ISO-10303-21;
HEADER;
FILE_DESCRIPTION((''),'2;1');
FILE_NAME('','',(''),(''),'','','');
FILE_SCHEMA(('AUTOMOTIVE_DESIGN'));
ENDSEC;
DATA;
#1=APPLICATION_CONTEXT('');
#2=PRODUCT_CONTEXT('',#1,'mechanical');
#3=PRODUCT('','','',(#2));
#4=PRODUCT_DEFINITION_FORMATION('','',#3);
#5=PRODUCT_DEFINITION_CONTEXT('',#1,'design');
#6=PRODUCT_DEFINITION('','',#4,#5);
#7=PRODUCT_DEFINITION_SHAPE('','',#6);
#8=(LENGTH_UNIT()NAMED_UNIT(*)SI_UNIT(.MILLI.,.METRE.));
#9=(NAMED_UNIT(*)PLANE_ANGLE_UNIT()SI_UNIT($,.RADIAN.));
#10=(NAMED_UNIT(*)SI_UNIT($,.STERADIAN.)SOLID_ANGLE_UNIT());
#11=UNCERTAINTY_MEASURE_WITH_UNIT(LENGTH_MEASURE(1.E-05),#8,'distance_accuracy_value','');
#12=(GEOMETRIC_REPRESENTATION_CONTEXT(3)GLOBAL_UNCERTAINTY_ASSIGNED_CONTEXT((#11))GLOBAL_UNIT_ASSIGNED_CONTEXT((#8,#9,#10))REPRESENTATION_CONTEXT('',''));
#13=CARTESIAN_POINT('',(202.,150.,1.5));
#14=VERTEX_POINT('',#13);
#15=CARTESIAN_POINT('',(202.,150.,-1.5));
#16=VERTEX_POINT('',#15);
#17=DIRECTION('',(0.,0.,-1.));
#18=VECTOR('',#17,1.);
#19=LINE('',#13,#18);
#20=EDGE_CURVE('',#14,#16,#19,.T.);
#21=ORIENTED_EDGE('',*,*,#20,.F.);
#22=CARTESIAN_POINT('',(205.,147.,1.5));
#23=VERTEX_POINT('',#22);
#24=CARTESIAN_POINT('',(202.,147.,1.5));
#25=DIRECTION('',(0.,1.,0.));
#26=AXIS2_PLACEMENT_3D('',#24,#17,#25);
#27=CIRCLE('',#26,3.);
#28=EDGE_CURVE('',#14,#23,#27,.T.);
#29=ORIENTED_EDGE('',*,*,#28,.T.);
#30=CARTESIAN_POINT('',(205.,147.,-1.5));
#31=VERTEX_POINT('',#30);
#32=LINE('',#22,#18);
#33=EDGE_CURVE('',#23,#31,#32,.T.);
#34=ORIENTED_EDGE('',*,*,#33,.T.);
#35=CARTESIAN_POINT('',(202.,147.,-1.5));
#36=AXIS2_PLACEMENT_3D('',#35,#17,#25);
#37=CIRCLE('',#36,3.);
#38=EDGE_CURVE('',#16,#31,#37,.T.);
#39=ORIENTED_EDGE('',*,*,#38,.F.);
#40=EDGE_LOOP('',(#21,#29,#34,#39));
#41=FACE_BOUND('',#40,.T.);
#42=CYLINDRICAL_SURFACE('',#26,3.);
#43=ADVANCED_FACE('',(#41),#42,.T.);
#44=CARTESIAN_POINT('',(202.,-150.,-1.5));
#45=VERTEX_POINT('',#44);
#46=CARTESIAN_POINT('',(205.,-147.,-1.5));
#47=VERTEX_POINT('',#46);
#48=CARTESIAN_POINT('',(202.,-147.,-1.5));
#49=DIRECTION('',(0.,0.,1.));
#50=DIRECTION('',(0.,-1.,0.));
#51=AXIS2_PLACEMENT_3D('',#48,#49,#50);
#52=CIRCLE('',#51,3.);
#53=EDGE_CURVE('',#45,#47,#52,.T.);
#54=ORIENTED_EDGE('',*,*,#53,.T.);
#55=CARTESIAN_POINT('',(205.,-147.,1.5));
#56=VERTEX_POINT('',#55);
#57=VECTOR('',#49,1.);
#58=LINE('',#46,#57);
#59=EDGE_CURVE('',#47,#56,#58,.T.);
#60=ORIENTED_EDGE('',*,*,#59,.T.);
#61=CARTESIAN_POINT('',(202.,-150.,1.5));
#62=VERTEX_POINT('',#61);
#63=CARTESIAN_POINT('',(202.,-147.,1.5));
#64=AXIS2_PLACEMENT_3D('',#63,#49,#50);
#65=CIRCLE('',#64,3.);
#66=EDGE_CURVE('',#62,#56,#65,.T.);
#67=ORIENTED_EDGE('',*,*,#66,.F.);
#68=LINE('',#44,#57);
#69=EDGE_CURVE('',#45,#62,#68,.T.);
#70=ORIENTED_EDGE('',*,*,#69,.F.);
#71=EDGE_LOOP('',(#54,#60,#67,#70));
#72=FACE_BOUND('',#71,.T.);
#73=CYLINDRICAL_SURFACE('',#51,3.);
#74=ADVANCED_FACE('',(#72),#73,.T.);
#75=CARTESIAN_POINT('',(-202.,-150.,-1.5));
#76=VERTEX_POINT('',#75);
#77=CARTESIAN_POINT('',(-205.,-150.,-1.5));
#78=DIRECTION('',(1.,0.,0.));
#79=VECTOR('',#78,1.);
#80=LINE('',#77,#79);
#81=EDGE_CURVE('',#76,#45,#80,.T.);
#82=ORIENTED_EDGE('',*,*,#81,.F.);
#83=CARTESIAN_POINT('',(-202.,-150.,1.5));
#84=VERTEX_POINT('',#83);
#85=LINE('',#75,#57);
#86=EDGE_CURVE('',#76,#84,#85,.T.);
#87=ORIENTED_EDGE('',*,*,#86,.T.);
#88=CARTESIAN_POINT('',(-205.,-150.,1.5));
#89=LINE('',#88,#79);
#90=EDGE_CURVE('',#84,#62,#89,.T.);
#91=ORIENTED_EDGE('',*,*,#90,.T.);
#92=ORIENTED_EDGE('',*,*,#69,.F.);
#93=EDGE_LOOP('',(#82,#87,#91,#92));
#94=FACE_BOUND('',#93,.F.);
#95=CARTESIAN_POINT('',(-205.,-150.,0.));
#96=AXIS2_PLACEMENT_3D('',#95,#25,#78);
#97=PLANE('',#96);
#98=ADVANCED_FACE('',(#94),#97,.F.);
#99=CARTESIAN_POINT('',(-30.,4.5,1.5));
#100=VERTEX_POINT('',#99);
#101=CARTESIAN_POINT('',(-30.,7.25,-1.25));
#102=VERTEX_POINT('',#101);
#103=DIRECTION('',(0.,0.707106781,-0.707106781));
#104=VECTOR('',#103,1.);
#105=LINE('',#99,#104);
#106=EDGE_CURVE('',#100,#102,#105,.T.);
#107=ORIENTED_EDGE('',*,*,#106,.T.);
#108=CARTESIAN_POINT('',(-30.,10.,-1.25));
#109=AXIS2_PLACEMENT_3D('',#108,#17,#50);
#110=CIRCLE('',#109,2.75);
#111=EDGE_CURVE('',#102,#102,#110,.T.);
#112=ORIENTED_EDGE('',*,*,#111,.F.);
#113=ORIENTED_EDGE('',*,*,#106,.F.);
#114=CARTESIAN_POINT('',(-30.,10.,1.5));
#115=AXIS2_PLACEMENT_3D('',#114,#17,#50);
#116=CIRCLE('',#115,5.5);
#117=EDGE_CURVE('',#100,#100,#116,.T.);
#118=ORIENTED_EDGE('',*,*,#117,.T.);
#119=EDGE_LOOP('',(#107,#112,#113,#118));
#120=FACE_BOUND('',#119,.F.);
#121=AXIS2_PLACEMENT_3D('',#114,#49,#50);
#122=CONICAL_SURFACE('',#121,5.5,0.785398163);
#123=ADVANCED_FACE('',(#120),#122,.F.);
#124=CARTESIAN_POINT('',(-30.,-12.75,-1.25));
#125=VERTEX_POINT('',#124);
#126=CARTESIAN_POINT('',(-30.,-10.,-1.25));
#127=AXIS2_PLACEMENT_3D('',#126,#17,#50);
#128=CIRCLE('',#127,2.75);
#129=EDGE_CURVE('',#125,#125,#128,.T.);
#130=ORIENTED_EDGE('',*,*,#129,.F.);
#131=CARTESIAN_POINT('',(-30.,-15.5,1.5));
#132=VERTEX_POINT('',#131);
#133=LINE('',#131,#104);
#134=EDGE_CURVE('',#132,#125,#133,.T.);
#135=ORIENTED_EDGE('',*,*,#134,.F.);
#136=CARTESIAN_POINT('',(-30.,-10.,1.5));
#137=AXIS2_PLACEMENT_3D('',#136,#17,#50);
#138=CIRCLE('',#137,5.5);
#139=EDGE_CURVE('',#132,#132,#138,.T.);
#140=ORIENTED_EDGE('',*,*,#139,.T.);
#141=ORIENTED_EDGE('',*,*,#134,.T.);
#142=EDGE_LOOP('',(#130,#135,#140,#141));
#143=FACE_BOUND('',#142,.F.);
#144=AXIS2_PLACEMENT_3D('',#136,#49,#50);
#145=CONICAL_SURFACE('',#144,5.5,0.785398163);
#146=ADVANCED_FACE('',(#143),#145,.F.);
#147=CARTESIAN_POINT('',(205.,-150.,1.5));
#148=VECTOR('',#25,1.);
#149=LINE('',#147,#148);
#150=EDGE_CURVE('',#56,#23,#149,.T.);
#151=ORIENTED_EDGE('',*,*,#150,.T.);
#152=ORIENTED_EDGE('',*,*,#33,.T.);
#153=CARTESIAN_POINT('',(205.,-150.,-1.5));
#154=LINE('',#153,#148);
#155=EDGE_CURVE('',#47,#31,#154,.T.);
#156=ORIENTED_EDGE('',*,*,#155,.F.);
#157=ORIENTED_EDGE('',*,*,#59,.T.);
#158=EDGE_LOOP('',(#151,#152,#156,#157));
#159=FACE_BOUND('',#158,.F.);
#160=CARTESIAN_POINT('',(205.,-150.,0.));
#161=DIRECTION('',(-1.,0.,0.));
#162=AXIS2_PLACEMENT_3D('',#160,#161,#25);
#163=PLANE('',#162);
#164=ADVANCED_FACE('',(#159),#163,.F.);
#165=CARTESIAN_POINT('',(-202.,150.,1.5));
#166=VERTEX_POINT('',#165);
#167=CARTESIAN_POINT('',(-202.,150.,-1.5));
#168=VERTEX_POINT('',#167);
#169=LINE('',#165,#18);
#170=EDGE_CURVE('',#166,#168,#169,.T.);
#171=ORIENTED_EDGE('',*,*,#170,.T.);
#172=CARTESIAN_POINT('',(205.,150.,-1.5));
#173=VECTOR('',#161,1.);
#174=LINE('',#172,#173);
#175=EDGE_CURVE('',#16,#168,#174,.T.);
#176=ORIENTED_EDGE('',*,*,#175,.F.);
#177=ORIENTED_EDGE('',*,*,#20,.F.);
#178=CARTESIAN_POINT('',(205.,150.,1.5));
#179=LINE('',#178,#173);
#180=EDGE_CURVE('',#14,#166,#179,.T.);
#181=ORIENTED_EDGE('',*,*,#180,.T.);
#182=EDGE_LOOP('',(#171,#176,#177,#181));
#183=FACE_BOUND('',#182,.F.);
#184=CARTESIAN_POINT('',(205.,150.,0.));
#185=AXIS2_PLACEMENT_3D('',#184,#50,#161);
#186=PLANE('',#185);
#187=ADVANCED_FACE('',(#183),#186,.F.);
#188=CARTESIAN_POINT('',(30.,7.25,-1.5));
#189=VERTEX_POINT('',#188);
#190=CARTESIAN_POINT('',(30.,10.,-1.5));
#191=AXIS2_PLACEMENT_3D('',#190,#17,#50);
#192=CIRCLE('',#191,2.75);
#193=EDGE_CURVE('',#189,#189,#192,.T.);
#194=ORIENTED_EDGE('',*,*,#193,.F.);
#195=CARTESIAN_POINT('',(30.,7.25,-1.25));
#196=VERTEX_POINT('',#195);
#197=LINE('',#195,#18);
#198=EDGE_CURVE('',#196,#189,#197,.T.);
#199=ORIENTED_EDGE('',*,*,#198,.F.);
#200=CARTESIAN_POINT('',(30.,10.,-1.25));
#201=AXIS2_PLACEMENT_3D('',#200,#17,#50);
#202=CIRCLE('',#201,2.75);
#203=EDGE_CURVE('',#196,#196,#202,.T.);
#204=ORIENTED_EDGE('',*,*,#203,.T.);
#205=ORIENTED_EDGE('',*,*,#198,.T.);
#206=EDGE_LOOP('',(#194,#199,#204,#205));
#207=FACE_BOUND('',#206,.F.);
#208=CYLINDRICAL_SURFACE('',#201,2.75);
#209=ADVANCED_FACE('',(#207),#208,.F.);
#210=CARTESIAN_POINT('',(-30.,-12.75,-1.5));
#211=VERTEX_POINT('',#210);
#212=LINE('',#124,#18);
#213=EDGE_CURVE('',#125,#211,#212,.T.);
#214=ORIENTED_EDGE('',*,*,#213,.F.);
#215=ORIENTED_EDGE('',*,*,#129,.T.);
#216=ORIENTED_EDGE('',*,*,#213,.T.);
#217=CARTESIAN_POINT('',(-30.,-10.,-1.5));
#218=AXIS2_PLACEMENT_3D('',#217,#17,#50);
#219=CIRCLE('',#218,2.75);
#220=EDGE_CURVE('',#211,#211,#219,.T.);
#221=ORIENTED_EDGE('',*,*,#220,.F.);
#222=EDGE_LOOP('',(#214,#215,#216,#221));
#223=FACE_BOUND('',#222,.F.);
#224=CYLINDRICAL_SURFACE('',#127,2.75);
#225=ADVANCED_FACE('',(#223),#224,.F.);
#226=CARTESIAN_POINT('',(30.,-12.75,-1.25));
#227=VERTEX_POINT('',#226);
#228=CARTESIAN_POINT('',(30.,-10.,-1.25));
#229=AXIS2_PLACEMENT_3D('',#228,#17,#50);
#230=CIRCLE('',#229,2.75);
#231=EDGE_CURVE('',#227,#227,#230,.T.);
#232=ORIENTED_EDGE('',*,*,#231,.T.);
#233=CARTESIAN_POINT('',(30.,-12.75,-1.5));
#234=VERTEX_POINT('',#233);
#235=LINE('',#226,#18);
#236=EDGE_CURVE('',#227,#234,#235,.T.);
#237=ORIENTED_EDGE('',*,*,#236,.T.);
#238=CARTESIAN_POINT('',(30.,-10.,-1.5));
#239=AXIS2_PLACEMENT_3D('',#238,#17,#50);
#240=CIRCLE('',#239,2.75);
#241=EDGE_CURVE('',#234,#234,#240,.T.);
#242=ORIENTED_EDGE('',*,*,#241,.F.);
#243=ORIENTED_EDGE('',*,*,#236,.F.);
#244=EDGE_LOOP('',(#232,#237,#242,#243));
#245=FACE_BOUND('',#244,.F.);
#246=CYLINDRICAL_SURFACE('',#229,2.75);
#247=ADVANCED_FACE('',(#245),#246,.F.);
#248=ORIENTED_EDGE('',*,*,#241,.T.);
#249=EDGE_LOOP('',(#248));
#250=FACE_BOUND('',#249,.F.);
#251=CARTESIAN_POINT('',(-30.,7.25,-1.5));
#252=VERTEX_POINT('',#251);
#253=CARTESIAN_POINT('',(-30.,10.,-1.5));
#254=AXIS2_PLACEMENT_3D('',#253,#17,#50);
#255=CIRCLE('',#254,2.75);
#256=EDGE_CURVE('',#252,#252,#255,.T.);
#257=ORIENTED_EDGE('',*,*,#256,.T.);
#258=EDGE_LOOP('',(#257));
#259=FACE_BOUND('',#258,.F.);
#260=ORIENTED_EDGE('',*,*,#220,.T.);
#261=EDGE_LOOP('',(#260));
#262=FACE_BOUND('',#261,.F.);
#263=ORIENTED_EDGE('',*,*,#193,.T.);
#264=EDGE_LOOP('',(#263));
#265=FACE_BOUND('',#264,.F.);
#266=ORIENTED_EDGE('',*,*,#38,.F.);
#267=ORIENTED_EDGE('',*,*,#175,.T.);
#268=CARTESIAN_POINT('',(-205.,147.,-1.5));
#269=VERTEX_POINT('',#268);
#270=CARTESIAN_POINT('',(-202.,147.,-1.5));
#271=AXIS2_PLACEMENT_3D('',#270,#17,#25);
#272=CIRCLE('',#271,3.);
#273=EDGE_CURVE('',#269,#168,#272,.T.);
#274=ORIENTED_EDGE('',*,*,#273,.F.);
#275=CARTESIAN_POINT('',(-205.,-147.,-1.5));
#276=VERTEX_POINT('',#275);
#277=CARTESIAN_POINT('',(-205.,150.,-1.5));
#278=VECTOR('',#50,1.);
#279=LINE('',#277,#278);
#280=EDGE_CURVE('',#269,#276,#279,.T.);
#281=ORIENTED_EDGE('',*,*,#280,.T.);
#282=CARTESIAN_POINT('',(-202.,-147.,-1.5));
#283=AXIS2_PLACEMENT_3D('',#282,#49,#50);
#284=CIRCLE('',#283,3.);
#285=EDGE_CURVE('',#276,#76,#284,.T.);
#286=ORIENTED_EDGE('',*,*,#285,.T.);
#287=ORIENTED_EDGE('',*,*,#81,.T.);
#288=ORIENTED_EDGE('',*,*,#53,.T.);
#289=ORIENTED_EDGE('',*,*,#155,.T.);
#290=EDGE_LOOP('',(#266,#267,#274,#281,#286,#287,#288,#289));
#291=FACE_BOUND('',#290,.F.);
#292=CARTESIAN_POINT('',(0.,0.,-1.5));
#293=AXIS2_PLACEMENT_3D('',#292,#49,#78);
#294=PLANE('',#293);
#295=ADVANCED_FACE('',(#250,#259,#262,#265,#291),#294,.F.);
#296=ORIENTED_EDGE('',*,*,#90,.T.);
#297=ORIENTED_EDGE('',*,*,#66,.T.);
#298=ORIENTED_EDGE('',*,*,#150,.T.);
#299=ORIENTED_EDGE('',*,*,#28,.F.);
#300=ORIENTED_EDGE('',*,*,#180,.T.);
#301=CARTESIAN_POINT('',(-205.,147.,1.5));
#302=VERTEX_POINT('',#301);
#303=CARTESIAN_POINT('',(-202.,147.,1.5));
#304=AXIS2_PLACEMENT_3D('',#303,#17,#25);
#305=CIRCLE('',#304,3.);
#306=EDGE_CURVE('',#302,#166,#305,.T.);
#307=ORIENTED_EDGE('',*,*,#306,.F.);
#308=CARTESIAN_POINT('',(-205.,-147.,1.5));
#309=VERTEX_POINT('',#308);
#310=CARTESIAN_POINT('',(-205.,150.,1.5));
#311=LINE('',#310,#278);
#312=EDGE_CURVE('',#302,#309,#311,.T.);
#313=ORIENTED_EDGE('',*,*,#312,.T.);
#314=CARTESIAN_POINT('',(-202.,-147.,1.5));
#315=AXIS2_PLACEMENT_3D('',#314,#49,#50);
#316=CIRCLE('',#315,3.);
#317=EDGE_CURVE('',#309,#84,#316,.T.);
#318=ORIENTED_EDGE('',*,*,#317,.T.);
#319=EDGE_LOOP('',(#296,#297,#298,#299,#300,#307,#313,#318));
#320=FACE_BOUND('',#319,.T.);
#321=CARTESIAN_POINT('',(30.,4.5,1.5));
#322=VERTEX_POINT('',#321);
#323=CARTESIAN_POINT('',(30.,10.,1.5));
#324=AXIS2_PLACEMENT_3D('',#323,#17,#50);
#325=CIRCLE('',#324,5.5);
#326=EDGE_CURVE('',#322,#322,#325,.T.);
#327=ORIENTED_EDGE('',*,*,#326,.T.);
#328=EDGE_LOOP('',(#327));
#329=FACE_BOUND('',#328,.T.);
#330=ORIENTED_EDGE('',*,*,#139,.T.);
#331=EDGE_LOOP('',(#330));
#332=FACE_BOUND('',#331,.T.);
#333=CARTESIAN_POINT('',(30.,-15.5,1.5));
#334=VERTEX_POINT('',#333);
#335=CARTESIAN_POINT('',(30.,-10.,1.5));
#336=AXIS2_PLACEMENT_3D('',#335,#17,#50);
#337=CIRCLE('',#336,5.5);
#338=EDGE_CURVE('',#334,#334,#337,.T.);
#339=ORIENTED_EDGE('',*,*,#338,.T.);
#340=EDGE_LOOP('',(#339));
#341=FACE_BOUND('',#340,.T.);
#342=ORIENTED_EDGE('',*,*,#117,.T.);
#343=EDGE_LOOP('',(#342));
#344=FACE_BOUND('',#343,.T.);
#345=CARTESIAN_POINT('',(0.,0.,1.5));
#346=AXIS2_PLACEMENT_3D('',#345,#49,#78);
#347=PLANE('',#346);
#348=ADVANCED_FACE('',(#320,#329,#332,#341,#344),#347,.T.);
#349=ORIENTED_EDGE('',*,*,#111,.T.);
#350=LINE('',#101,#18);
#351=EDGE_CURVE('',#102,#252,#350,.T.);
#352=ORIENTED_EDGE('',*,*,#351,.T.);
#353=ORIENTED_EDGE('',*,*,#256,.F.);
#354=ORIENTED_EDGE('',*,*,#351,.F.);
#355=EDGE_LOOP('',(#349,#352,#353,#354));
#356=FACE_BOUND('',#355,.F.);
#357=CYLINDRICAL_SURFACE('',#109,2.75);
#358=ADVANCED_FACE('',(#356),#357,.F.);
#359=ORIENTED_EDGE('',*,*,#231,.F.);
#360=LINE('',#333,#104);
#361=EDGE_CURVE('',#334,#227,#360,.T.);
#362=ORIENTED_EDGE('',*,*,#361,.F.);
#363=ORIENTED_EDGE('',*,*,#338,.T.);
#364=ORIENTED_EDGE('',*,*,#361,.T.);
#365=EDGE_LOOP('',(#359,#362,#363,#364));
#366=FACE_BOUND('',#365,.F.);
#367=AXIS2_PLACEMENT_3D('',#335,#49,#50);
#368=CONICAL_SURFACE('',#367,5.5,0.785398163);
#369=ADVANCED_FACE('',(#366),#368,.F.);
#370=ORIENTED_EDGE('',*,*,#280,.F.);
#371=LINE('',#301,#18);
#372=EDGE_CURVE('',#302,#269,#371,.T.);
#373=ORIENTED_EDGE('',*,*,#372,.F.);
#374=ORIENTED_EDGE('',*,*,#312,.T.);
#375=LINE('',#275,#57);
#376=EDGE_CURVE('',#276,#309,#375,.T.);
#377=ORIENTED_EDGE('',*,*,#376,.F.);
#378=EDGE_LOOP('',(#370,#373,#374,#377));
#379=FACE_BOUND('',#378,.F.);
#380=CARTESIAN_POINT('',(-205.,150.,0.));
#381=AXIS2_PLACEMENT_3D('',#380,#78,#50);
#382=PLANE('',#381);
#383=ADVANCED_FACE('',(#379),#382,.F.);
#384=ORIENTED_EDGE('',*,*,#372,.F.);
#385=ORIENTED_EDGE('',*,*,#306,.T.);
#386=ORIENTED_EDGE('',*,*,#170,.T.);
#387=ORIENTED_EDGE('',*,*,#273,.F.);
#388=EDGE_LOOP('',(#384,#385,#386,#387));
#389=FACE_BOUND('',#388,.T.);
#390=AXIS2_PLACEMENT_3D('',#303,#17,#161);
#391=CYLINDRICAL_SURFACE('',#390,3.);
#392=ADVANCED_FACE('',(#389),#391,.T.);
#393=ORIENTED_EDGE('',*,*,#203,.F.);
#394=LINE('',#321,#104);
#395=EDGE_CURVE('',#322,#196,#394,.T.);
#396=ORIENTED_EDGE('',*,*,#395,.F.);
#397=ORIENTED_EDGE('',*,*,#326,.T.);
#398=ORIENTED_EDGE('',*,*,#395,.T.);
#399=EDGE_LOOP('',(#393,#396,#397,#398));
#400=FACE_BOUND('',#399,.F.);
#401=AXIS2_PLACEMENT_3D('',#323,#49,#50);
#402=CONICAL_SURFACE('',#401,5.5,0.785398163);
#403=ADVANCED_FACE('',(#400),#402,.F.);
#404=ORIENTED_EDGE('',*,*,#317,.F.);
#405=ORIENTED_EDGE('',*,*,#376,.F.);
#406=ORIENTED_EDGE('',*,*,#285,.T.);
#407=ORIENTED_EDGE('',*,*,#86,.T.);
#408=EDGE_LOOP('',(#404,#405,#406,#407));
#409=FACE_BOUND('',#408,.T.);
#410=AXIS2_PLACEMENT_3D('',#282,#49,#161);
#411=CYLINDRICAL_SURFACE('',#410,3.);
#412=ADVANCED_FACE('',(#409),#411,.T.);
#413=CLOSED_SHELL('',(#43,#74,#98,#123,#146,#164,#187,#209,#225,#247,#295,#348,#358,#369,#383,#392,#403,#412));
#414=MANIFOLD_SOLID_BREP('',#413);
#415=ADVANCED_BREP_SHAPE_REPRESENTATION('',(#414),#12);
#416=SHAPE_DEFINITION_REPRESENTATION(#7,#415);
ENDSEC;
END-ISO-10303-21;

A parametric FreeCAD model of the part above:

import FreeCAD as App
import Part
import Sketcher
from FreeCAD import Vector


def edges_at(feature, points):
    """Names of the edges that pass closest to the given points."""
    edges = feature.Shape.Edges
    near = lambda p: min(range(len(edges)), key=lambda i: edges[i].distToShape(Part.Vertex(*p))[0])
    return sorted({f"Edge{near(p) + 1}" for p in points})

doc = App.newDocument("Part")
params = doc.addObject("Spreadsheet::Sheet", "Params")
for row, (alias, value) in enumerate([
    ("sketch1_width", "410 mm"),
    ("sketch1_height", "300 mm"),
    ("pad1_length", "3 mm"),
    ("sketch2_diameter", "5.5 mm"),
    ("hole_diameter", "5.5 mm"),
    ("hole_csink_diameter", "11 mm"),
    ("fillet_radius", "3 mm"),
], start=1):
    params.set(f"A{row}", alias)
    params.set(f"B{row}", "=" + value)
    params.setAlias(f"B{row}", alias)

body = doc.addObject("PartDesign::Body", "Body")

sketch1 = body.newObject("Sketcher::SketchObject", "Sketch")
sketch1.AttachmentSupport = (doc.getObject("XY_Plane"), [""])
sketch1.MapMode = "FlatFace"
sketch1.addGeometry(Part.LineSegment(Vector(-205, 150, 0), Vector(-205, -150, 0)), False)
sketch1.addGeometry(Part.LineSegment(Vector(-205, -150, 0), Vector(205, -150, 0)), False)
sketch1.addGeometry(Part.LineSegment(Vector(205, -150, 0), Vector(205, 150, 0)), False)
sketch1.addGeometry(Part.LineSegment(Vector(205, 150, 0), Vector(-205, 150, 0)), False)
sketch1.addConstraint(Sketcher.Constraint("Coincident", 0, 2, 1, 1))
sketch1.addConstraint(Sketcher.Constraint("Coincident", 1, 2, 2, 1))
sketch1.addConstraint(Sketcher.Constraint("Coincident", 2, 2, 3, 1))
sketch1.addConstraint(Sketcher.Constraint("Coincident", 3, 2, 0, 1))
sketch1.addConstraint(Sketcher.Constraint("Vertical", 0))
sketch1.addConstraint(Sketcher.Constraint("Horizontal", 1))
sketch1.addConstraint(Sketcher.Constraint("Vertical", 2))
sketch1.addConstraint(Sketcher.Constraint("Horizontal", 3))
sketch1.addConstraint(Sketcher.Constraint("Symmetric", 0, 2, 2, 2, -1, 1))
sketch1.addConstraint(Sketcher.Constraint("DistanceX", 1, 1, 1, 2, 410.0))
sketch1.addConstraint(Sketcher.Constraint("DistanceY", 0, 2, 0, 1, 300.0))
sketch1.setExpression("Constraints[9]", "Params.sketch1_width")
sketch1.setExpression("Constraints[10]", "Params.sketch1_height")
pad1 = body.newObject("PartDesign::Pad", "Pad")
pad1.Profile = sketch1
pad1.setExpression("Length", "Params.pad1_length")
pad1.Midplane = True

sketch2 = body.newObject("Sketcher::SketchObject", "Sketch001")
sketch2.AttachmentSupport = (doc.getObject("XY_Plane"), [""])
sketch2.MapMode = "FlatFace"
sketch2.AttachmentOffset = App.Placement(Vector(0, 0, 1.5), App.Rotation())
sketch2.addGeometry(Part.Circle(Vector(-30, 10, 0), Vector(0, 0, 1), 2.75), False)
sketch2.addGeometry(Part.Circle(Vector(-30, -10, 0), Vector(0, 0, 1), 2.75), False)
sketch2.addGeometry(Part.Circle(Vector(30, 10, 0), Vector(0, 0, 1), 2.75), False)
sketch2.addGeometry(Part.Circle(Vector(30, -10, 0), Vector(0, 0, 1), 2.75), False)
sketch2.addConstraint(Sketcher.Constraint("Equal", 0, 1))
sketch2.addConstraint(Sketcher.Constraint("Equal", 1, 2))
sketch2.addConstraint(Sketcher.Constraint("Equal", 2, 3))
sketch2.addConstraint(Sketcher.Constraint("Symmetric", 1, 3, 2, 3, -1, 1))
sketch2.addConstraint(Sketcher.Constraint("Symmetric", 0, 3, 3, 3, -1, 1))
sketch2.addConstraint(Sketcher.Constraint("Symmetric", 0, 3, 2, 3, -2))
sketch2.addConstraint(Sketcher.Constraint("Diameter", 0, 5.5))
sketch2.addConstraint(Sketcher.Constraint("DistanceX", 0, 3, -1, 1, 30.0))
sketch2.addConstraint(Sketcher.Constraint("DistanceY", -1, 1, 0, 3, 10.0))
sketch2.setExpression("Constraints[6]", "Params.sketch2_diameter")
doc.recompute()
hole = body.newObject("PartDesign::Hole", "Hole")
hole.Profile = sketch2
hole.ThreadType = "None"
hole.setExpression("Diameter", "Params.hole_diameter")
hole.DepthType = "ThroughAll"
hole.HoleCutType = "Countersink"
hole.setExpression("HoleCutDiameter", "Params.hole_csink_diameter")
hole.HoleCutCountersinkAngle = 90
doc.recompute()

fillet = body.newObject("PartDesign::Fillet", "Fillet")
fillet.Base = (hole, edges_at(hole, [
    (205, -150, 0),
    (205, 150, 0),
    (-205, 150, 0),
    (-205, -150, 0),
]))
fillet.setExpression("Radius", "Params.fillet_radius")

doc.recompute()
